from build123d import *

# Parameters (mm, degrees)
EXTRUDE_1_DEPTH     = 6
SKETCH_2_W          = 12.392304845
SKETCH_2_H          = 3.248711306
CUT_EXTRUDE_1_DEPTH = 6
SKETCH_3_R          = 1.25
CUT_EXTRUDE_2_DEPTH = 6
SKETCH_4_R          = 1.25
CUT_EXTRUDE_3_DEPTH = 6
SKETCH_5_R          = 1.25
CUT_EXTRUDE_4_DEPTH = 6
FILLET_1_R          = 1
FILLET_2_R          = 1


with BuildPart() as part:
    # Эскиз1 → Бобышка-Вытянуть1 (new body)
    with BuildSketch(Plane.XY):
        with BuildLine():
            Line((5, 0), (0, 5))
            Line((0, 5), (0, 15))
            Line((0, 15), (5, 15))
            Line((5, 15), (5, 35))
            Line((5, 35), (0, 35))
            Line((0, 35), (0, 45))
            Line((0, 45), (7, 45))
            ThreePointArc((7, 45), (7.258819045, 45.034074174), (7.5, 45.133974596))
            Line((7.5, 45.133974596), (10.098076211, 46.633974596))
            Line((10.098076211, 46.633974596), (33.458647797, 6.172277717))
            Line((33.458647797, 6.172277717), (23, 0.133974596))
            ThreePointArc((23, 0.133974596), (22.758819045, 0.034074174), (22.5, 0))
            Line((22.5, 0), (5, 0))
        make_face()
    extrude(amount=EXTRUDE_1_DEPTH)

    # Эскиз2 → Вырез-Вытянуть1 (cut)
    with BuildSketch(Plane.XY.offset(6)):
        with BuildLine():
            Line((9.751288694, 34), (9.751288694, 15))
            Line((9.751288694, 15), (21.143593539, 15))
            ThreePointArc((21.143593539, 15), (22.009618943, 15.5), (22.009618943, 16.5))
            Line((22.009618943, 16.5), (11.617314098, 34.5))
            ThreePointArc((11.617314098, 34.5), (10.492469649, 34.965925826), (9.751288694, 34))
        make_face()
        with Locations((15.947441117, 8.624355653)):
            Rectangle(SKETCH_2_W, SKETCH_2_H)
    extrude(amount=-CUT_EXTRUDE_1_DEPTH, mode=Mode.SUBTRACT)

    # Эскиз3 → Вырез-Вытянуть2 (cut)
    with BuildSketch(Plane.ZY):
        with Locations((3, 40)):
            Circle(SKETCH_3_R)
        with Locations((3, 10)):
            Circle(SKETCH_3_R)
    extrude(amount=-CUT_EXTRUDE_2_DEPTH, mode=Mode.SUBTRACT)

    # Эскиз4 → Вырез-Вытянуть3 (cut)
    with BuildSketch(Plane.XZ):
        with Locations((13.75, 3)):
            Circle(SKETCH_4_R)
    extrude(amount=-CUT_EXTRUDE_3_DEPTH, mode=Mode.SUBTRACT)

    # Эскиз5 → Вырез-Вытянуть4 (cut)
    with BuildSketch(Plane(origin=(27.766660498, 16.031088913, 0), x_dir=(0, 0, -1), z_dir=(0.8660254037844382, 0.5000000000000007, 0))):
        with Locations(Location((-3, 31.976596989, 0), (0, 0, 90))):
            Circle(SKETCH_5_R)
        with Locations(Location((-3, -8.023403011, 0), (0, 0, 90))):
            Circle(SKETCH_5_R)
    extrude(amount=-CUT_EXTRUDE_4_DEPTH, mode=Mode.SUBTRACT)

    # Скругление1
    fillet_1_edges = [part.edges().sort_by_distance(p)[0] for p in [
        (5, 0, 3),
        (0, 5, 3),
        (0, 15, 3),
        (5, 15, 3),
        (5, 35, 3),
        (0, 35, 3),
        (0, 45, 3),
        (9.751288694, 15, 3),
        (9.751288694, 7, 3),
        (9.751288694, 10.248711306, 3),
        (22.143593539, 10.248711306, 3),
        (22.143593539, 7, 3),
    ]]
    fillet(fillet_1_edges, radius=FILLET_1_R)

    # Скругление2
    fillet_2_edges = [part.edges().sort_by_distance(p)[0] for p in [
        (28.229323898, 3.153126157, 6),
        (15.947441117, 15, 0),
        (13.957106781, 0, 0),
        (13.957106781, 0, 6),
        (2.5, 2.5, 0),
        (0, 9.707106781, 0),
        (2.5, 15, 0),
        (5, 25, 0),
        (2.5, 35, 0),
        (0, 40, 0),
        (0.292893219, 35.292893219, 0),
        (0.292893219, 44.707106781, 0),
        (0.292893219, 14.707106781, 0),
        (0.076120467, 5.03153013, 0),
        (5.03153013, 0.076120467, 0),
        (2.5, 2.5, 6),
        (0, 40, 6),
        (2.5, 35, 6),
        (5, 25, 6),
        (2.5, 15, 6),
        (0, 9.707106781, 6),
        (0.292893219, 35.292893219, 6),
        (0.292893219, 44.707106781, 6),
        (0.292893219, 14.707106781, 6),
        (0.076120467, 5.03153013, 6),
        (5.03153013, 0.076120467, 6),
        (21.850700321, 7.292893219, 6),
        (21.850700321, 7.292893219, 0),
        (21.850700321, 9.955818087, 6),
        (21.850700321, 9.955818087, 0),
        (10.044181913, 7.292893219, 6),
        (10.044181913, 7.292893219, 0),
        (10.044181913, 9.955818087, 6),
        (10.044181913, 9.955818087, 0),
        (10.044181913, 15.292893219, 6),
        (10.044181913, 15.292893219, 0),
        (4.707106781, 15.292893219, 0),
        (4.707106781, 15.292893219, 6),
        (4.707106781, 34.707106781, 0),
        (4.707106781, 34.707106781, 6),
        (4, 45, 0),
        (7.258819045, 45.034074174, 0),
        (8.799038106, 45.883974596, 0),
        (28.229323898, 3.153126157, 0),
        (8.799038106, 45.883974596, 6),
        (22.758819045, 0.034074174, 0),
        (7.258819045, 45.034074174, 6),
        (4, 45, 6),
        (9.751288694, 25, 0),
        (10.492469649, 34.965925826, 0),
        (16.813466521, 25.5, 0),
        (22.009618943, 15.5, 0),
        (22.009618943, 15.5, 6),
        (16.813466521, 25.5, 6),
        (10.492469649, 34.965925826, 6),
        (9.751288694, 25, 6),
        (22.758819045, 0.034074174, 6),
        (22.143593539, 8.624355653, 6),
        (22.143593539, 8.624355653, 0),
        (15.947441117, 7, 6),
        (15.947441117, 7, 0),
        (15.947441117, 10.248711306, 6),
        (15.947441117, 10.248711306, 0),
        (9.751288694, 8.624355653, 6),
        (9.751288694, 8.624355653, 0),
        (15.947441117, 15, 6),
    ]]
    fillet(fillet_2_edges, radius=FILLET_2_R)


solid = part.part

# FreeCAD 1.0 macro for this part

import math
import FreeCAD as App
import Part
import Sketcher
Q = App.Units.Quantity


def edges_at(feature, points):
    """Names of the edges that pass closest to the given points."""
    edges = feature.Shape.Edges
    near = lambda p: min(range(len(edges)), key=lambda i: edges[i].distToShape(Part.Vertex(*p))[0])
    return sorted({f"Edge{near(p) + 1}" for p in points})


def add_polygon(sketch, points):
    """Adds a closed chain of lines whose ends are joined by coincident constraints."""
    first, n = sketch.GeometryCount, len(points)
    for a, b in zip(points, points[1:] + points[:1]):
        sketch.addGeometry(Part.LineSegment(App.Vector(*a, 0), App.Vector(*b, 0)), False)
    for i in range(n):
        sketch.addConstraint(Sketcher.Constraint("Coincident", first + i, 2, first + (i + 1) % n, 1))

doc = App.newDocument("Part")
params = doc.addObject("Spreadsheet::Sheet", "Params")
for row, (alias, value) in enumerate([
    ("sketch1_radius", "1 mm"),
    ("sketch1_width", "7 mm"),
    ("sketch1_width2", "5 mm"),
    ("sketch1_height", "10 mm"),
    ("sketch1_height2", "20 mm"),
    ("pad1_length", "6 mm"),
    ("sketch2_radius", "1 mm"),
    ("sketch2_height", "19 mm"),
    ("pocket1_length", "6 mm"),
    ("sketch3_diameter", "2.5 mm"),
    ("pocket2_length", "6 mm"),
    ("sketch4_diameter", "2.5 mm"),
    ("pocket3_length", "6 mm"),
    ("sketch5_diameter", "2.5 mm"),
    ("pocket4_length", "6 mm"),
    ("fillet_radius", "1 mm"),
    ("fillet2_radius", "1 mm"),
], start=1):
    params.set(f"A{row}", alias)
    params.set(f"B{row}", "=" + value)
    params.setAlias(f"B{row}", alias)

body = doc.addObject("PartDesign::Body", "Body")

# Sketch on XY plane
sketch1 = body.newObject("Sketcher::SketchObject", "Sketch")
sketch1.AttachmentSupport = (doc.getObject("XY_Plane"), [""])
sketch1.MapMode = "FlatFace"
sketch1.addGeometry([
    Part.LineSegment(App.Vector(0, 5, 0), App.Vector(5, 0, 0)),  # 0
    Part.LineSegment(App.Vector(5, 0, 0), App.Vector(22.5, 0, 0)),  # 1
    Part.ArcOfCircle(Part.Circle(App.Vector(22.5, 1, 0), App.Vector(0, 0, 1), 1), math.radians(-90), math.radians(-60)),  # 2
    Part.LineSegment(App.Vector(23, 0.1, 0), App.Vector(33.5, 6.2, 0)),  # 3
    Part.LineSegment(App.Vector(33.5, 6.2, 0), App.Vector(10.1, 46.6, 0)),  # 4
    Part.LineSegment(App.Vector(10.1, 46.6, 0), App.Vector(7.5, 45.1, 0)),  # 5
    Part.ArcOfCircle(Part.Circle(App.Vector(7, 46, 0), App.Vector(0, 0, 1), 1), math.radians(-90), math.radians(-60)),  # 6
    Part.LineSegment(App.Vector(7, 45, 0), App.Vector(0, 45, 0)),  # 7
    Part.LineSegment(App.Vector(0, 45, 0), App.Vector(0, 35, 0)),  # 8
    Part.LineSegment(App.Vector(0, 35, 0), App.Vector(5, 35, 0)),  # 9
    Part.LineSegment(App.Vector(5, 35, 0), App.Vector(5, 15, 0)),  # 10
    Part.LineSegment(App.Vector(5, 15, 0), App.Vector(0, 15, 0)),  # 11
    Part.LineSegment(App.Vector(0, 15, 0), App.Vector(0, 5, 0)),  # 12
], False)
sketch1.addConstraint([
    Sketcher.Constraint("Coincident", 0, 2, 1, 1),
    Sketcher.Constraint("Tangent", 1, 2, 2, 1),
    Sketcher.Constraint("Tangent", 2, 2, 3, 1),
    Sketcher.Constraint("Coincident", 3, 2, 4, 1),
    Sketcher.Constraint("Coincident", 4, 2, 5, 1),
    Sketcher.Constraint("Tangent", 5, 2, 6, 2),
    Sketcher.Constraint("Tangent", 6, 1, 7, 1),
    Sketcher.Constraint("Coincident", 7, 2, 8, 1),
    Sketcher.Constraint("Coincident", 8, 2, 9, 1),
    Sketcher.Constraint("Coincident", 9, 2, 10, 1),
    Sketcher.Constraint("Coincident", 10, 2, 11, 1),
    Sketcher.Constraint("Coincident", 11, 2, 12, 1),
    Sketcher.Constraint("Coincident", 12, 2, 0, 1),
    Sketcher.Constraint("Horizontal", 1),
    Sketcher.Constraint("Horizontal", 7),
    Sketcher.Constraint("Vertical", 8),
    Sketcher.Constraint("Horizontal", 9),
    Sketcher.Constraint("Vertical", 10),
    Sketcher.Constraint("Horizontal", 11),
    Sketcher.Constraint("Vertical", 12),
    Sketcher.Constraint("Equal", 2, 6),
    Sketcher.Constraint("PointOnObject", 0, 2, -1),
    Sketcher.Constraint("PointOnObject", 7, 2, -2),
    Sketcher.Constraint("PointOnObject", 11, 2, -2),
    Sketcher.Constraint("Perpendicular", 3, 4),
    Sketcher.Constraint("Perpendicular", 4, 5),
    Sketcher.Constraint("Vertical", 0, 2, 9, 2),
    Sketcher.Constraint("Equal", 8, 12),
    Sketcher.Constraint("Radius", 2, Q("1 mm")),
    Sketcher.Constraint("DistanceX", 7, 2, 7, 1, Q("7 mm")),
    Sketcher.Constraint("DistanceX", 9, 1, 9, 2, Q("5 mm")),
    Sketcher.Constraint("DistanceY", 8, 2, 8, 1, Q("10 mm")),
    Sketcher.Constraint("DistanceY", 10, 2, 10, 1, Q("20 mm")),
    Sketcher.Constraint("Angle", 0, Q("-45 deg")),
    Sketcher.Constraint("Angle", 3, Q("30 deg")),
    Sketcher.Constraint("Distance", 5, Q("3 mm")),
    Sketcher.Constraint("DistanceX", 1, 1, 1, 2, Q("17.5 mm")),
])
sketch1.setExpression("Constraints[28]", "Params.sketch1_radius")
sketch1.setExpression("Constraints[29]", "Params.sketch1_width")
sketch1.setExpression("Constraints[30]", "Params.sketch1_width2")
sketch1.setExpression("Constraints[31]", "Params.sketch1_height")
sketch1.setExpression("Constraints[32]", "Params.sketch1_height2")
pad1 = body.newObject("PartDesign::Pad", "Pad")
pad1.Profile = sketch1
pad1.setExpression("Length", "Params.pad1_length")

# Sketch on XY plane
sketch2 = body.newObject("Sketcher::SketchObject", "Sketch001")
sketch2.AttachmentSupport = (doc.getObject("XY_Plane"), [""])
sketch2.MapMode = "FlatFace"
sketch2.AttachmentOffset = App.Placement(App.Vector(0, 0, 6), App.Rotation())
sketch2.addGeometry(Part.LineSegment(App.Vector(9.8, 34, 0), App.Vector(9.8, 15, 0)), False)  # 0
sketch2.addGeometry(Part.LineSegment(App.Vector(9.8, 15, 0), App.Vector(21.1, 15, 0)), False)  # 1
sketch2.addGeometry(Part.ArcOfCircle(Part.Circle(App.Vector(21.1, 16, 0), App.Vector(0, 0, 1), 1), math.radians(-90), math.radians(30)), False)  # 2
sketch2.addGeometry(Part.LineSegment(App.Vector(22, 16.5, 0), App.Vector(11.6, 34.5, 0)), False)  # 3
sketch2.addGeometry(Part.ArcOfCircle(Part.Circle(App.Vector(10.8, 34, 0), App.Vector(0, 0, 1), 1), math.radians(30), math.radians(180)), False)  # 4
add_polygon(sketch2, [(9.8, 10.2), (9.8, 7), (22.1, 7), (22.1, 10.2)])  # lines 5-8
sketch2.addConstraint([
    Sketcher.Constraint("Coincident", 0, 2, 1, 1),
    Sketcher.Constraint("Tangent", 1, 2, 2, 1),
    Sketcher.Constraint("Tangent", 2, 2, 3, 1),
    Sketcher.Constraint("Tangent", 3, 2, 4, 1),
    Sketcher.Constraint("Tangent", 4, 2, 0, 1),
    Sketcher.Constraint("Vertical", 0),
    Sketcher.Constraint("Horizontal", 1),
    Sketcher.Constraint("Vertical", 5),
    Sketcher.Constraint("Horizontal", 6),
    Sketcher.Constraint("Vertical", 7),
    Sketcher.Constraint("Horizontal", 8),
    Sketcher.Constraint("Equal", 2, 4),
    Sketcher.Constraint("Vertical", 4, 2, 5, 2),
    Sketcher.Constraint("Radius", 2, Q("1 mm")),
    Sketcher.Constraint("DistanceY", 0, 2, 0, 1, Q("19 mm")),
    Sketcher.Constraint("Angle", 3, Q("120 deg")),
    Sketcher.Constraint("DistanceY", -1, 1, 2, 3, Q("16 mm")),
    Sketcher.Constraint("DistanceY", -1, 1, 5, 2, Q("7 mm")),
    Sketcher.Constraint("DistanceX", 1, 2, 6, 2, Q("1 mm")),
    Sketcher.Constraint("DistanceY", 5, 2, 5, 1, Q("3.248711 mm")),
    Sketcher.Constraint("DistanceX", -1, 1, 4, 3, Q("10.751289 mm")),
])
sketch2.setExpression("Constraints[17]", "Params.sketch2_radius")
sketch2.setExpression("Constraints[18]", "Params.sketch2_height")
pocket1 = body.newObject("PartDesign::Pocket", "Pocket")
pocket1.Profile = sketch2
pocket1.setExpression("Length", "Params.pocket1_length")

# Sketch on YZ plane
sketch3 = body.newObject("Sketcher::SketchObject", "Sketch002")
sketch3.AttachmentSupport = (doc.getObject("YZ_Plane"), [""])
sketch3.MapMode = "FlatFace"
sketch3.addGeometry([
    Part.Circle(App.Vector(40, 3, 0), App.Vector(0, 0, 1), 1.2),
    Part.Circle(App.Vector(10, 3, 0), App.Vector(0, 0, 1), 1.2),
], False)
sketch3.addConstraint([
    Sketcher.Constraint("Equal", 0, 1),
    Sketcher.Constraint("Horizontal", 0, 3, 1, 3),
    Sketcher.Constraint("Diameter", 0, Q("2.5 mm")),
    Sketcher.Constraint("DistanceX", -1, 1, 0, 3, Q("40 mm")),
    Sketcher.Constraint("DistanceY", -1, 1, 0, 3, Q("3 mm")),
    Sketcher.Constraint("DistanceX", -1, 1, 1, 3, Q("10 mm")),
])
sketch3.setExpression("Constraints[2]", "Params.sketch3_diameter")
pocket2 = body.newObject("PartDesign::Pocket", "Pocket001")
pocket2.Profile = sketch3
pocket2.setExpression("Length", "Params.pocket2_length")
pocket2.Reversed = True

# Sketch on XZ plane
sketch4 = body.newObject("Sketcher::SketchObject", "Sketch003")
sketch4.AttachmentSupport = (doc.getObject("XZ_Plane"), [""])
sketch4.MapMode = "FlatFace"
sketch4.addGeometry(Part.Circle(App.Vector(13.8, 3, 0), App.Vector(0, 0, 1), 1.2), False)
sketch4.addConstraint([
    Sketcher.Constraint("Diameter", 0, Q("2.5 mm")),
    Sketcher.Constraint("DistanceY", -1, 1, 0, 3, Q("3 mm")),
    Sketcher.Constraint("DistanceX", -1, 1, 0, 3, Q("13.75 mm")),
])
sketch4.setExpression("Constraints[0]", "Params.sketch4_diameter")
pocket3 = body.newObject("PartDesign::Pocket", "Pocket002")
pocket3.Profile = sketch4
pocket3.setExpression("Length", "Params.pocket3_length")

# Sketch on an angled plane
sketch5 = body.newObject("Sketcher::SketchObject", "Sketch004")
sketch5.Placement = App.Placement(App.Vector(27.76666, 16.031089, 0), App.Rotation(App.Vector(0, 0, -1), App.Vector(-0.5, 0.866025404, 0), App.Vector(0.866025404, 0.5, 0), "ZXY"))
sketch5.addGeometry([
    Part.Circle(App.Vector(-3, 32, 0), App.Vector(0, 0, 1), 1.2),
    Part.Circle(App.Vector(-3, -8, 0), App.Vector(0, 0, 1), 1.2),
], False)
sketch5.addConstraint([
    Sketcher.Constraint("Equal", 0, 1),
    Sketcher.Constraint("Vertical", 0, 3, 1, 3),
    Sketcher.Constraint("Diameter", 0, Q("2.5 mm")),
    Sketcher.Constraint("DistanceX", 0, 3, -1, 1, Q("3 mm")),
    Sketcher.Constraint("DistanceY", 1, 3, 0, 3, Q("40 mm")),
    Sketcher.Constraint("DistanceY", -1, 1, 0, 3, Q("31.976597 mm")),
])
sketch5.setExpression("Constraints[2]", "Params.sketch5_diameter")
pocket4 = body.newObject("PartDesign::Pocket", "Pocket003")
pocket4.Profile = sketch5
pocket4.setExpression("Length", "Params.pocket4_length")
doc.recompute()

fillet = body.newObject("PartDesign::Fillet", "Fillet")
fillet.Base = (pocket4, edges_at(pocket4, [
    (5, 0, 3),
    (0, 5, 3),
    (0, 15, 3),
    (5, 15, 3),
    (5, 35, 3),
    (0, 35, 3),
    (0, 45, 3),
    (9.751, 15, 3),
    (9.751, 7, 3),
    (9.751, 10.249, 3),
    (22.144, 10.249, 3),
    (22.144, 7, 3),
]))
fillet.setExpression("Radius", "Params.fillet_radius")
doc.recompute()

fillet2 = body.newObject("PartDesign::Fillet", "Fillet001")
fillet2.Base = (fillet, edges_at(fillet, [
    (28.229, 3.153, 6),
    (15.947, 15, 0),
    (13.957, 0, 0),
    (13.957, 0, 6),
    (2.5, 2.5, 0),
    (0, 9.707, 0),
    (2.5, 15, 0),
    (5, 25, 0),
    (2.5, 35, 0),
    (0, 40, 0),
    (0.293, 35.293, 0),
    (0.293, 44.707, 0),
    (0.293, 14.707, 0),
    (0.076, 5.032, 0),
    (5.032, 0.076, 0),
    (2.5, 2.5, 6),
    (0, 40, 6),
    (2.5, 35, 6),
    (5, 25, 6),
    (2.5, 15, 6),
    (0, 9.707, 6),
    (0.293, 35.293, 6),
    (0.293, 44.707, 6),
    (0.293, 14.707, 6),
    (0.076, 5.032, 6),
    (5.032, 0.076, 6),
    (21.851, 7.293, 6),
    (21.851, 7.293, 0),
    (21.851, 9.956, 6),
    (21.851, 9.956, 0),
    (10.044, 7.293, 6),
    (10.044, 7.293, 0),
    (10.044, 9.956, 6),
    (10.044, 9.956, 0),
    (10.044, 15.293, 6),
    (10.044, 15.293, 0),
    (4.707, 15.293, 0),
    (4.707, 15.293, 6),
    (4.707, 34.707, 0),
    (4.707, 34.707, 6),
    (4, 45, 0),
    (7.259, 45.034, 0),
    (8.799, 45.884, 0),
    (28.229, 3.153, 0),
    (8.799, 45.884, 6),
    (22.759, 0.034, 0),
    (7.259, 45.034, 6),
    (4, 45, 6),
    (9.751, 25, 0),
    (10.492, 34.966, 0),
    (16.813, 25.5, 0),
    (22.01, 15.5, 0),
    (22.01, 15.5, 6),
    (16.813, 25.5, 6),
    (10.492, 34.966, 6),
    (9.751, 25, 6),
    (22.759, 0.034, 6),
    (22.144, 8.624, 6),
    (22.144, 8.624, 0),
    (15.947, 7, 6),
    (15.947, 7, 0),
    (15.947, 10.249, 6),
    (15.947, 10.249, 0),
    (9.751, 8.624, 6),
    (9.751, 8.624, 0),
    (15.947, 15, 6),
]))
fillet2.setExpression("Radius", "Params.fillet2_radius")

doc.recompute()
